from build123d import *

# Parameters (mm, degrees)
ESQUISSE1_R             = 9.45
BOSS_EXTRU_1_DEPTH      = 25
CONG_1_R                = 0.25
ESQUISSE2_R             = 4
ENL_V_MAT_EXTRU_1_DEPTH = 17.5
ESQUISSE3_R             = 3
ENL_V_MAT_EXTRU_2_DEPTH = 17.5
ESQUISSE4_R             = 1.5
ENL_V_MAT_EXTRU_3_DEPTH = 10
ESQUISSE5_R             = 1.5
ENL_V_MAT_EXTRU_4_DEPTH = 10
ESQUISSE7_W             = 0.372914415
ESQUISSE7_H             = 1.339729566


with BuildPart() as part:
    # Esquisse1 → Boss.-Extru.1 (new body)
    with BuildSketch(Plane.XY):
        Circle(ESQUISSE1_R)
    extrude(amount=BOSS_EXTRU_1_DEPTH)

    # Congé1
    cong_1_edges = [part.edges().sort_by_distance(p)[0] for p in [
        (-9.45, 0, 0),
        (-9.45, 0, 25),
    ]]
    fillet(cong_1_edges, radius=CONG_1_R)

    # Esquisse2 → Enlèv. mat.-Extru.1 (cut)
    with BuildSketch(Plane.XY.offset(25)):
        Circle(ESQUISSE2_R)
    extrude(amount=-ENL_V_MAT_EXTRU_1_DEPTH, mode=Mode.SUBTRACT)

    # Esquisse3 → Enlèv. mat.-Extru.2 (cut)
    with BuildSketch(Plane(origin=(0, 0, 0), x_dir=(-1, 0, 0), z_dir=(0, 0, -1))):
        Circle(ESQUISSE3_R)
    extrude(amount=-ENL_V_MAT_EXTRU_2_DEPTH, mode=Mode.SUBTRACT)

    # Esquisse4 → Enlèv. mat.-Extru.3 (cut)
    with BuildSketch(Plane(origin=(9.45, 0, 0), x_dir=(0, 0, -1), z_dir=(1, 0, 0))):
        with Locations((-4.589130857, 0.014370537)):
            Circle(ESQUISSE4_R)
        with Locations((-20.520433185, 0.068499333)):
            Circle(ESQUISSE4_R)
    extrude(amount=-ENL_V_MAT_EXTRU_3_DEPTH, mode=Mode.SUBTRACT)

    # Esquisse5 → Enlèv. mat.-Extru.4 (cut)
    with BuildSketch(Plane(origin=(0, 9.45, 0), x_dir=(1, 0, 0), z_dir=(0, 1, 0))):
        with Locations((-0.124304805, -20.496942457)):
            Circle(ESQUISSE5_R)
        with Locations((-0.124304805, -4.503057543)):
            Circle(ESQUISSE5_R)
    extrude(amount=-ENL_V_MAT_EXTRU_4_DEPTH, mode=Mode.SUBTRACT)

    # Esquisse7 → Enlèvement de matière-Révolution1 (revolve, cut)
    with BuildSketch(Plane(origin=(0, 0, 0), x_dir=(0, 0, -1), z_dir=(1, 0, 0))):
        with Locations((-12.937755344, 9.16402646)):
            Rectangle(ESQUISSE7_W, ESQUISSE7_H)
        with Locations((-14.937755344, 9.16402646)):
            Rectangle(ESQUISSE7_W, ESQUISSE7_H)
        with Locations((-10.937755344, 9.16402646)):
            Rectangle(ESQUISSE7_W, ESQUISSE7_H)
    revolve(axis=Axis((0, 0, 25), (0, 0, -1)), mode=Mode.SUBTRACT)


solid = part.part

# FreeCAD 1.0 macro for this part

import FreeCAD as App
import Part
import Sketcher

V = App.Vector


def edges_at(feature, points):
    """Names of the edges that pass closest to the given points."""
    edges = feature.Shape.Edges
    near = lambda p: min(range(len(edges)), key=lambda i: edges[i].distToShape(Part.Vertex(*p))[0])
    return sorted({f"Edge{near(p) + 1}" for p in points})


def add_polygon(sketch, points):
    """Adds a closed chain of lines whose ends are joined by coincident constraints."""
    first, n = sketch.GeometryCount, len(points)
    for a, b in zip(points, points[1:] + points[:1]):
        sketch.addGeometry(Part.LineSegment(App.Vector(*a, 0), App.Vector(*b, 0)), False)
    for i in range(n):
        sketch.addConstraint(Sketcher.Constraint("Coincident", first + i, 2, first + (i + 1) % n, 1))

doc = App.newDocument("Part")
body = doc.addObject("PartDesign::Body", "Body")

# Sketch on XY plane
sketch1 = body.newObject("Sketcher::SketchObject", "Sketch")
sketch1.AttachmentSupport = (doc.getObject("XY_Plane"), [""])
sketch1.MapMode = "FlatFace"
sketch1.addGeometry(Part.Circle(V(0, 0, 0), V(0, 0, 1), 9), False)
sketch1.addConstraint(Sketcher.Constraint("Coincident", 0, 3, -1, 1))
sketch1.addConstraint(Sketcher.Constraint("Diameter", 0, 18.9))
pad1 = body.newObject("PartDesign::Pad", "Pad")
pad1.Profile = sketch1
pad1.Length = 25
doc.recompute()

fillet = body.newObject("PartDesign::Fillet", "Fillet")
fillet.Base = (pad1, edges_at(pad1, [(-9.45, 0, 0), (-9.45, 0, 25)]))
fillet.Radius = 0.25

# Sketch on XY plane
sketch2 = body.newObject("Sketcher::SketchObject", "Sketch001")
sketch2.AttachmentSupport = (doc.getObject("XY_Plane"), [""])
sketch2.MapMode = "FlatFace"
sketch2.AttachmentOffset = App.Placement(V(0, 0, 25), App.Rotation())
sketch2.addGeometry(Part.Circle(V(0, 0, 0), V(0, 0, 1), 4), False)
sketch2.addConstraint(Sketcher.Constraint("Coincident", 0, 3, -1, 1))
sketch2.addConstraint(Sketcher.Constraint("Diameter", 0, 8.0))
pocket1 = body.newObject("PartDesign::Pocket", "Pocket")
pocket1.Profile = sketch2
pocket1.Length = 17.5

# Sketch on XY plane
sketch3 = body.newObject("Sketcher::SketchObject", "Sketch002")
sketch3.AttachmentSupport = (doc.getObject("XY_Plane"), [""])
sketch3.MapMode = "FlatFace"
sketch3.addGeometry(Part.Circle(V(0, 0, 0), V(0, 0, 1), 3), False)
sketch3.addConstraint(Sketcher.Constraint("Coincident", 0, 3, -1, 1))
sketch3.addConstraint(Sketcher.Constraint("Diameter", 0, 6.0))
pocket2 = body.newObject("PartDesign::Pocket", "Pocket001")
pocket2.Profile = sketch3
pocket2.Length = 17.5
pocket2.Reversed = True

# Sketch on YZ plane
sketch4 = body.newObject("Sketcher::SketchObject", "Sketch003")
sketch4.AttachmentSupport = (doc.getObject("YZ_Plane"), [""])
sketch4.MapMode = "FlatFace"
sketch4.AttachmentOffset = App.Placement(V(0, 0, 9.45), App.Rotation())
sketch4.addGeometry(Part.Circle(V(0, 4.6, 0), V(0, 0, 1), 1.5), False)
sketch4.addGeometry(Part.Circle(V(0.1, 20.5, 0), V(0, 0, 1), 1.5), False)
sketch4.addConstraint(Sketcher.Constraint("Equal", 0, 1))
sketch4.addConstraint(Sketcher.Constraint("Diameter", 0, 3.0))
sketch4.addConstraint(Sketcher.Constraint("DistanceX", -1, 1, 1, 3, 0.068499))
sketch4.addConstraint(Sketcher.Constraint("DistanceX", -1, 1, 0, 3, 0.014371))
sketch4.addConstraint(Sketcher.Constraint("DistanceY", -1, 1, 0, 3, 4.589131))
sketch4.addConstraint(Sketcher.Constraint("DistanceY", -1, 1, 1, 3, 20.520433))
pocket3 = body.newObject("PartDesign::Pocket", "Pocket002")
pocket3.Profile = sketch4
pocket3.Length = 10

# Sketch on XZ plane
sketch5 = body.newObject("Sketcher::SketchObject", "Sketch004")
sketch5.AttachmentSupport = (doc.getObject("XZ_Plane"), [""])
sketch5.MapMode = "FlatFace"
sketch5.AttachmentOffset = App.Placement(V(0, 0, -9.45), App.Rotation())
sketch5.addGeometry(Part.Circle(V(-0.1, 20.5, 0), V(0, 0, 1), 1.5), False)
sketch5.addGeometry(Part.Circle(V(-0.1, 4.5, 0), V(0, 0, 1), 1.5), False)
sketch5.addConstraint(Sketcher.Constraint("Equal", 0, 1))
sketch5.addConstraint(Sketcher.Constraint("Vertical", 0, 3, 1, 3))
sketch5.addConstraint(Sketcher.Constraint("Diameter", 0, 3.0))
sketch5.addConstraint(Sketcher.Constraint("DistanceX", 0, 3, -1, 1, 0.124305))
sketch5.addConstraint(Sketcher.Constraint("DistanceY", -1, 1, 0, 3, 20.496942))
sketch5.addConstraint(Sketcher.Constraint("DistanceY", -1, 1, 1, 3, 4.503058))
pocket4 = body.newObject("PartDesign::Pocket", "Pocket003")
pocket4.Profile = sketch5
pocket4.Length = 10
pocket4.Reversed = True

# Sketch on YZ plane
sketch6 = body.newObject("Sketcher::SketchObject", "Sketch005")
sketch6.AttachmentSupport = (doc.getObject("YZ_Plane"), [""])
sketch6.MapMode = "FlatFace"
add_polygon(sketch6, [(9.83, 13.12), (8.49, 13.12), (8.49, 12.75), (9.83, 12.75)])  # lines 0-3
add_polygon(sketch6, [(9.83, 15.12), (8.49, 15.12), (8.49, 14.75), (9.83, 14.75)])  # lines 4-7
add_polygon(sketch6, [(9.83, 11.12), (8.49, 11.12), (8.49, 10.75), (9.83, 10.75)])  # lines 8-11
sketch6.addConstraint(Sketcher.Constraint("Horizontal", 0))
sketch6.addConstraint(Sketcher.Constraint("Vertical", 1))
sketch6.addConstraint(Sketcher.Constraint("Horizontal", 2))
sketch6.addConstraint(Sketcher.Constraint("Vertical", 3))
sketch6.addConstraint(Sketcher.Constraint("Horizontal", 4))
sketch6.addConstraint(Sketcher.Constraint("Vertical", 5))
sketch6.addConstraint(Sketcher.Constraint("Horizontal", 6))
sketch6.addConstraint(Sketcher.Constraint("Vertical", 7))
sketch6.addConstraint(Sketcher.Constraint("Horizontal", 8))
sketch6.addConstraint(Sketcher.Constraint("Vertical", 9))
sketch6.addConstraint(Sketcher.Constraint("Horizontal", 10))
sketch6.addConstraint(Sketcher.Constraint("Vertical", 11))
sketch6.addConstraint(Sketcher.Constraint("Vertical", 1, 2, 4, 2))
sketch6.addConstraint(Sketcher.Constraint("Vertical", 3, 2, 6, 2))
sketch6.addConstraint(Sketcher.Constraint("Vertical", 5, 2, 8, 2))
sketch6.addConstraint(Sketcher.Constraint("Vertical", 7, 2, 10, 2))
sketch6.addConstraint(Sketcher.Constraint("Equal", 3, 5))
sketch6.addConstraint(Sketcher.Constraint("Equal", 7, 9))
sketch6.addConstraint(Sketcher.Constraint("DistanceY", 0, 2, 4, 2, 2.0))
sketch6.addConstraint(Sketcher.Constraint("DistanceY", 8, 2, 0, 2, 2.0))
sketch6.addConstraint(Sketcher.Constraint("DistanceX", 0, 2, 0, 1, 1.33973))
sketch6.addConstraint(Sketcher.Constraint("DistanceY", -1, 1, 1, 2, 12.751298))
sketch6.addConstraint(Sketcher.Constraint("DistanceY", 1, 2, 1, 1, 0.372914))
sketch6.addConstraint(Sketcher.Constraint("DistanceX", -1, 1, 0, 2, 8.494162))
groove = body.newObject("PartDesign::Groove", "Groove")
groove.Profile = sketch6
groove.ReferenceAxis = (sketch6, ["V_Axis"])
groove.Angle = 360

doc.recompute()
